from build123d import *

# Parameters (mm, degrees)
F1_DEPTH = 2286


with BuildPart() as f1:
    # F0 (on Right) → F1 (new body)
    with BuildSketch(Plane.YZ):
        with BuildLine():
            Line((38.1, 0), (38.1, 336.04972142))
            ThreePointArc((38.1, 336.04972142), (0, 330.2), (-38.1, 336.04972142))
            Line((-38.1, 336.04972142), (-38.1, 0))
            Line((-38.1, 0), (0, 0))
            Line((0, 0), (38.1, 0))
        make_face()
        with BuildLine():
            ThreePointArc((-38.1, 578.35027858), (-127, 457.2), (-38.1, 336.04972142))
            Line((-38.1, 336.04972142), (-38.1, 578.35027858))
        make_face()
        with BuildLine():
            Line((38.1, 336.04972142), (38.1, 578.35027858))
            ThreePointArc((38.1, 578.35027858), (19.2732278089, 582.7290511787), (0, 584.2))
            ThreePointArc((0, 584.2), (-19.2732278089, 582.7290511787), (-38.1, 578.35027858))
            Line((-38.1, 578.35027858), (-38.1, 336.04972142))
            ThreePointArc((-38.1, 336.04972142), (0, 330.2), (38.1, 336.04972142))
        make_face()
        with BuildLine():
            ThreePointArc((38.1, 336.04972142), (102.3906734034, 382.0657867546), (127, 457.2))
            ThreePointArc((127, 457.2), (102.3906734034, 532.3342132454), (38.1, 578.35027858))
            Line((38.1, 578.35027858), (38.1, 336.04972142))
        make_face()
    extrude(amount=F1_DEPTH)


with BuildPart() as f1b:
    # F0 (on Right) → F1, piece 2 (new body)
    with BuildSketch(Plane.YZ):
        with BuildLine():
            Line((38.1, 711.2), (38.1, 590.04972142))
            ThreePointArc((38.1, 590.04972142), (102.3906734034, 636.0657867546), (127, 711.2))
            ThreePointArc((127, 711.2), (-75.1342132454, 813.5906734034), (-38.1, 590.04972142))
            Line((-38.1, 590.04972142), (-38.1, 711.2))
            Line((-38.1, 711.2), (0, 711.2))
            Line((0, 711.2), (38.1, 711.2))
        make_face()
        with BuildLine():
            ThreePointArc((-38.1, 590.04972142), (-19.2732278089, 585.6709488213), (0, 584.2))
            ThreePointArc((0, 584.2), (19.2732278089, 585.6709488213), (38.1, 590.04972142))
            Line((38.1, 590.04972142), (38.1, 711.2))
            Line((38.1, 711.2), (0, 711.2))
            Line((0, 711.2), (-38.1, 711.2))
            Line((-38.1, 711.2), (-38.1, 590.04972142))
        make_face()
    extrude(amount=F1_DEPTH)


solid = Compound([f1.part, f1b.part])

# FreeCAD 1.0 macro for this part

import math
import FreeCAD as App
import Part
import Sketcher
Q = App.Units.Quantity

doc = App.newDocument("Part")
params = doc.addObject("Spreadsheet::Sheet", "Params")
for row, (alias, value) in enumerate([
    ("sketch1_radius", "5 in"),
    ("sketch1_width", "3 in"),
    ("pad1_length", "90 in"),
    ("sketch2_radius", "5 in"),
    ("pad2_length", "90 in"),
], start=1):
    params.set(f"A{row}", alias)
    params.set(f"B{row}", "=" + value)
    params.setAlias(f"B{row}", alias)

body = doc.addObject("PartDesign::Body", "Body")

sketch1 = body.newObject("Sketcher::SketchObject", "Sketch")
sketch1.AttachmentSupport = (doc.getObject("YZ_Plane"), [""])
sketch1.MapMode = "FlatFace"
sketch1.addGeometry([
    Part.LineSegment(App.Vector(38.1, 0, 0), App.Vector(38.1, 336.049721, 0)),
    Part.ArcOfCircle(Part.Circle(App.Vector(0, 457.2, 0), App.Vector(0, 0, 1), 127), math.radians(-72.542397), math.radians(72.542397)),
    Part.ArcOfCircle(Part.Circle(App.Vector(0, 457.2, 0), App.Vector(0, 0, 1), 127), math.radians(72.542397), math.radians(90)),
    Part.ArcOfCircle(Part.Circle(App.Vector(0, 457.2, 0), App.Vector(0, 0, 1), 127), math.radians(90), math.radians(107.457603)),
    Part.ArcOfCircle(Part.Circle(App.Vector(0, 457.2, 0), App.Vector(0, 0, 1), 127), math.radians(107.457603), math.radians(252.542397)),
    Part.LineSegment(App.Vector(-38.1, 336.049721, 0), App.Vector(-38.1, 0, 0)),
    Part.LineSegment(App.Vector(-38.1, 0, 0), App.Vector(38.1, 0, 0)),
], False)
sketch1.addConstraint([
    Sketcher.Constraint("Coincident", 0, 2, 1, 1),
    Sketcher.Constraint("Tangent", 1, 2, 2, 1),
    Sketcher.Constraint("Tangent", 2, 2, 3, 1),
    Sketcher.Constraint("Tangent", 3, 2, 4, 1),
    Sketcher.Constraint("Coincident", 4, 2, 5, 1),
    Sketcher.Constraint("Coincident", 5, 2, 6, 1),
    Sketcher.Constraint("Coincident", 6, 2, 0, 1),
    Sketcher.Constraint("Vertical", 0),
    Sketcher.Constraint("Vertical", 5),
    Sketcher.Constraint("Horizontal", 6),
    Sketcher.Constraint("Coincident", 3, 3, 1, 3),
    Sketcher.Constraint("Equal", 3, 4),
    Sketcher.Constraint("Symmetric", 5, 2, 6, 2, -1, 1),
    Sketcher.Constraint("Symmetric", 1, 2, 3, 2, -2),
    Sketcher.Constraint("PointOnObject", 2, 2, -2),
    Sketcher.Constraint("Vertical", 0, 2, 1, 2),
    Sketcher.Constraint("Radius", 1, Q("5 in")),
    Sketcher.Constraint("DistanceX", 6, 1, 6, 2, Q("3 in")),
    Sketcher.Constraint("DistanceY", -1, 1, 1, 3, Q("18 in")),
])
sketch1.setExpression("Constraints[16]", "Params.sketch1_radius")
sketch1.setExpression("Constraints[17]", "Params.sketch1_width")
pad1 = body.newObject("PartDesign::Pad", "Pad")
pad1.Profile = sketch1
pad1.setExpression("Length", "Params.pad1_length")
body2 = doc.addObject("PartDesign::Body", "Body001")

sketch2 = body2.newObject("Sketcher::SketchObject", "Sketch001")
sketch2.AttachmentSupport = (doc.getObject("YZ_Plane001"), [""])
sketch2.MapMode = "FlatFace"
sketch2.addGeometry([
    Part.ArcOfCircle(Part.Circle(App.Vector(0, 711.2, 0), App.Vector(0, 0, 1), 127), math.radians(-72.542397), math.radians(252.542397)),
    Part.ArcOfCircle(Part.Circle(App.Vector(0, 711.2, 0), App.Vector(0, 0, 1), 127), math.radians(-107.457603), math.radians(-90)),
    Part.ArcOfCircle(Part.Circle(App.Vector(0, 711.2, 0), App.Vector(0, 0, 1), 127), math.radians(-90), math.radians(-72.542397)),
], False)
sketch2.addConstraint([
    Sketcher.Constraint("Tangent", 0, 2, 1, 1),
    Sketcher.Constraint("Tangent", 1, 2, 2, 1),
    Sketcher.Constraint("Coincident", 2, 2, 0, 1),
    Sketcher.Constraint("Equal", 0, 1),
    Sketcher.Constraint("Symmetric", 0, 2, 2, 2, -2),
    Sketcher.Constraint("PointOnObject", 1, 2, -2),
    Sketcher.Constraint("Radius", 0, Q("5 in")),
    Sketcher.Constraint("DistanceY", -1, 1, 0, 3, Q("28 in")),
    Sketcher.Constraint("DistanceX", 0, 2, 2, 2, Q("3 in")),
])
sketch2.setExpression("Constraints[6]", "Params.sketch2_radius")
pad2 = body2.newObject("PartDesign::Pad", "Pad001")
pad2.Profile = sketch2
pad2.setExpression("Length", "Params.pad2_length")

doc.recompute()
